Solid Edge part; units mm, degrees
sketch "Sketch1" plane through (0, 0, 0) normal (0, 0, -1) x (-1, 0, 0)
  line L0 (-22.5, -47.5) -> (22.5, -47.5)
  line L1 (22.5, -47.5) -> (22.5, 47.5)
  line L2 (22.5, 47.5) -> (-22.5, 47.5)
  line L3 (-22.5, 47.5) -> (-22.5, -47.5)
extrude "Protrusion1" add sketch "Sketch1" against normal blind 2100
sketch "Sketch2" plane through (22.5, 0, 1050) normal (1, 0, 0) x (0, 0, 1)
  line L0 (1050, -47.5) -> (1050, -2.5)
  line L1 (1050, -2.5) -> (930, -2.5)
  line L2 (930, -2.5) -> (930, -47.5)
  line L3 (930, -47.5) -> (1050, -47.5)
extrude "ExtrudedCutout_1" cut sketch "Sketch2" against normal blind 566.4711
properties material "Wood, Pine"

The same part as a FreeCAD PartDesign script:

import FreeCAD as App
import Part
import Sketcher
from FreeCAD import Vector

doc = App.newDocument("Part")
params = doc.addObject("Spreadsheet::Sheet", "Params")
for row, (alias, value) in enumerate([
    ("sketch1_width", "45 mm"),
    ("sketch1_height", "95 mm"),
    ("pad1_length", "2100 mm"),
    ("sketch2_width", "45 mm"),
    ("sketch2_height", "120 mm"),
    ("pocket1_length", "566.4711 mm"),
], start=1):
    params.set(f"A{row}", alias)
    params.set(f"B{row}", "=" + value)
    params.setAlias(f"B{row}", alias)

body = doc.addObject("PartDesign::Body", "Body")

# Sketch on XY plane
sketch1 = doc.addObject("Sketcher::SketchObject", "Sketch")
body.addObject(sketch1)
sketch1.AttachmentSupport = (doc.XY_Plane, [""])
sketch1.MapMode = "FlatFace"
sketch1.addGeometry([
    Part.LineSegment(Vector(22, 48, 0), Vector(22, -48, 0)),
    Part.LineSegment(Vector(22, -48, 0), Vector(-22, -48, 0)),
    Part.LineSegment(Vector(-22, -48, 0), Vector(-22, 48, 0)),
    Part.LineSegment(Vector(-22, 48, 0), Vector(22, 48, 0)),
], False)
sketch1.addConstraint([
    Sketcher.Constraint("Coincident", 0, 2, 1, 1),
    Sketcher.Constraint("Coincident", 1, 2, 2, 1),
    Sketcher.Constraint("Coincident", 2, 2, 3, 1),
    Sketcher.Constraint("Coincident", 3, 2, 0, 1),
    Sketcher.Constraint("Vertical", 0),
    Sketcher.Constraint("Horizontal", 1),
    Sketcher.Constraint("Vertical", 2),
    Sketcher.Constraint("Horizontal", 3),
    Sketcher.Constraint("Symmetric", 0, 2, 2, 2, -1, 1),
    Sketcher.Constraint("DistanceX", 1, 2, 1, 1, 45.0),
    Sketcher.Constraint("DistanceY", 0, 2, 0, 1, 95.0),
])
sketch1.setExpression("Constraints[9]", "Params.sketch1_width")
sketch1.setExpression("Constraints[10]", "Params.sketch1_height")
pad1 = doc.addObject("PartDesign::Pad", "Pad")
body.addObject(pad1)
pad1.Profile = sketch1
pad1.setExpression("Length", "Params.pad1_length")

# Sketch on YZ plane
sketch2 = doc.addObject("Sketcher::SketchObject", "Sketch001")
body.addObject(sketch2)
sketch2.AttachmentSupport = (doc.YZ_Plane, [""])
sketch2.MapMode = "FlatFace"
sketch2.AttachmentOffset = App.Placement(Vector(0, 0, 22.5), App.Rotation())
sketch2.addGeometry([
    Part.LineSegment(Vector(48, 1980, 0), Vector(48, 2100, 0)),
    Part.LineSegment(Vector(48, 2100, 0), Vector(2, 2100, 0)),
    Part.LineSegment(Vector(2, 2100, 0), Vector(2, 1980, 0)),
    Part.LineSegment(Vector(2, 1980, 0), Vector(48, 1980, 0)),
], False)
sketch2.addConstraint([
    Sketcher.Constraint("Coincident", 0, 2, 1, 1),
    Sketcher.Constraint("Coincident", 1, 2, 2, 1),
    Sketcher.Constraint("Coincident", 2, 2, 3, 1),
    Sketcher.Constraint("Coincident", 3, 2, 0, 1),
    Sketcher.Constraint("Vertical", 0),
    Sketcher.Constraint("Horizontal", 1),
    Sketcher.Constraint("Vertical", 2),
    Sketcher.Constraint("Horizontal", 3),
    Sketcher.Constraint("DistanceX", 1, 2, 1, 1, 45.0),
    Sketcher.Constraint("DistanceY", 0, 1, 0, 2, 120.0),
    Sketcher.Constraint("DistanceY", -1, 1, 0, 2, 2100.0),
    Sketcher.Constraint("DistanceX", -1, 1, 0, 2, 47.5),
])
sketch2.setExpression("Constraints[8]", "Params.sketch2_width")
sketch2.setExpression("Constraints[9]", "Params.sketch2_height")
pocket1 = doc.addObject("PartDesign::Pocket", "Pocket")
body.addObject(pocket1)
pocket1.Profile = sketch2
pocket1.setExpression("Length", "Params.pocket1_length")

doc.recompute()
